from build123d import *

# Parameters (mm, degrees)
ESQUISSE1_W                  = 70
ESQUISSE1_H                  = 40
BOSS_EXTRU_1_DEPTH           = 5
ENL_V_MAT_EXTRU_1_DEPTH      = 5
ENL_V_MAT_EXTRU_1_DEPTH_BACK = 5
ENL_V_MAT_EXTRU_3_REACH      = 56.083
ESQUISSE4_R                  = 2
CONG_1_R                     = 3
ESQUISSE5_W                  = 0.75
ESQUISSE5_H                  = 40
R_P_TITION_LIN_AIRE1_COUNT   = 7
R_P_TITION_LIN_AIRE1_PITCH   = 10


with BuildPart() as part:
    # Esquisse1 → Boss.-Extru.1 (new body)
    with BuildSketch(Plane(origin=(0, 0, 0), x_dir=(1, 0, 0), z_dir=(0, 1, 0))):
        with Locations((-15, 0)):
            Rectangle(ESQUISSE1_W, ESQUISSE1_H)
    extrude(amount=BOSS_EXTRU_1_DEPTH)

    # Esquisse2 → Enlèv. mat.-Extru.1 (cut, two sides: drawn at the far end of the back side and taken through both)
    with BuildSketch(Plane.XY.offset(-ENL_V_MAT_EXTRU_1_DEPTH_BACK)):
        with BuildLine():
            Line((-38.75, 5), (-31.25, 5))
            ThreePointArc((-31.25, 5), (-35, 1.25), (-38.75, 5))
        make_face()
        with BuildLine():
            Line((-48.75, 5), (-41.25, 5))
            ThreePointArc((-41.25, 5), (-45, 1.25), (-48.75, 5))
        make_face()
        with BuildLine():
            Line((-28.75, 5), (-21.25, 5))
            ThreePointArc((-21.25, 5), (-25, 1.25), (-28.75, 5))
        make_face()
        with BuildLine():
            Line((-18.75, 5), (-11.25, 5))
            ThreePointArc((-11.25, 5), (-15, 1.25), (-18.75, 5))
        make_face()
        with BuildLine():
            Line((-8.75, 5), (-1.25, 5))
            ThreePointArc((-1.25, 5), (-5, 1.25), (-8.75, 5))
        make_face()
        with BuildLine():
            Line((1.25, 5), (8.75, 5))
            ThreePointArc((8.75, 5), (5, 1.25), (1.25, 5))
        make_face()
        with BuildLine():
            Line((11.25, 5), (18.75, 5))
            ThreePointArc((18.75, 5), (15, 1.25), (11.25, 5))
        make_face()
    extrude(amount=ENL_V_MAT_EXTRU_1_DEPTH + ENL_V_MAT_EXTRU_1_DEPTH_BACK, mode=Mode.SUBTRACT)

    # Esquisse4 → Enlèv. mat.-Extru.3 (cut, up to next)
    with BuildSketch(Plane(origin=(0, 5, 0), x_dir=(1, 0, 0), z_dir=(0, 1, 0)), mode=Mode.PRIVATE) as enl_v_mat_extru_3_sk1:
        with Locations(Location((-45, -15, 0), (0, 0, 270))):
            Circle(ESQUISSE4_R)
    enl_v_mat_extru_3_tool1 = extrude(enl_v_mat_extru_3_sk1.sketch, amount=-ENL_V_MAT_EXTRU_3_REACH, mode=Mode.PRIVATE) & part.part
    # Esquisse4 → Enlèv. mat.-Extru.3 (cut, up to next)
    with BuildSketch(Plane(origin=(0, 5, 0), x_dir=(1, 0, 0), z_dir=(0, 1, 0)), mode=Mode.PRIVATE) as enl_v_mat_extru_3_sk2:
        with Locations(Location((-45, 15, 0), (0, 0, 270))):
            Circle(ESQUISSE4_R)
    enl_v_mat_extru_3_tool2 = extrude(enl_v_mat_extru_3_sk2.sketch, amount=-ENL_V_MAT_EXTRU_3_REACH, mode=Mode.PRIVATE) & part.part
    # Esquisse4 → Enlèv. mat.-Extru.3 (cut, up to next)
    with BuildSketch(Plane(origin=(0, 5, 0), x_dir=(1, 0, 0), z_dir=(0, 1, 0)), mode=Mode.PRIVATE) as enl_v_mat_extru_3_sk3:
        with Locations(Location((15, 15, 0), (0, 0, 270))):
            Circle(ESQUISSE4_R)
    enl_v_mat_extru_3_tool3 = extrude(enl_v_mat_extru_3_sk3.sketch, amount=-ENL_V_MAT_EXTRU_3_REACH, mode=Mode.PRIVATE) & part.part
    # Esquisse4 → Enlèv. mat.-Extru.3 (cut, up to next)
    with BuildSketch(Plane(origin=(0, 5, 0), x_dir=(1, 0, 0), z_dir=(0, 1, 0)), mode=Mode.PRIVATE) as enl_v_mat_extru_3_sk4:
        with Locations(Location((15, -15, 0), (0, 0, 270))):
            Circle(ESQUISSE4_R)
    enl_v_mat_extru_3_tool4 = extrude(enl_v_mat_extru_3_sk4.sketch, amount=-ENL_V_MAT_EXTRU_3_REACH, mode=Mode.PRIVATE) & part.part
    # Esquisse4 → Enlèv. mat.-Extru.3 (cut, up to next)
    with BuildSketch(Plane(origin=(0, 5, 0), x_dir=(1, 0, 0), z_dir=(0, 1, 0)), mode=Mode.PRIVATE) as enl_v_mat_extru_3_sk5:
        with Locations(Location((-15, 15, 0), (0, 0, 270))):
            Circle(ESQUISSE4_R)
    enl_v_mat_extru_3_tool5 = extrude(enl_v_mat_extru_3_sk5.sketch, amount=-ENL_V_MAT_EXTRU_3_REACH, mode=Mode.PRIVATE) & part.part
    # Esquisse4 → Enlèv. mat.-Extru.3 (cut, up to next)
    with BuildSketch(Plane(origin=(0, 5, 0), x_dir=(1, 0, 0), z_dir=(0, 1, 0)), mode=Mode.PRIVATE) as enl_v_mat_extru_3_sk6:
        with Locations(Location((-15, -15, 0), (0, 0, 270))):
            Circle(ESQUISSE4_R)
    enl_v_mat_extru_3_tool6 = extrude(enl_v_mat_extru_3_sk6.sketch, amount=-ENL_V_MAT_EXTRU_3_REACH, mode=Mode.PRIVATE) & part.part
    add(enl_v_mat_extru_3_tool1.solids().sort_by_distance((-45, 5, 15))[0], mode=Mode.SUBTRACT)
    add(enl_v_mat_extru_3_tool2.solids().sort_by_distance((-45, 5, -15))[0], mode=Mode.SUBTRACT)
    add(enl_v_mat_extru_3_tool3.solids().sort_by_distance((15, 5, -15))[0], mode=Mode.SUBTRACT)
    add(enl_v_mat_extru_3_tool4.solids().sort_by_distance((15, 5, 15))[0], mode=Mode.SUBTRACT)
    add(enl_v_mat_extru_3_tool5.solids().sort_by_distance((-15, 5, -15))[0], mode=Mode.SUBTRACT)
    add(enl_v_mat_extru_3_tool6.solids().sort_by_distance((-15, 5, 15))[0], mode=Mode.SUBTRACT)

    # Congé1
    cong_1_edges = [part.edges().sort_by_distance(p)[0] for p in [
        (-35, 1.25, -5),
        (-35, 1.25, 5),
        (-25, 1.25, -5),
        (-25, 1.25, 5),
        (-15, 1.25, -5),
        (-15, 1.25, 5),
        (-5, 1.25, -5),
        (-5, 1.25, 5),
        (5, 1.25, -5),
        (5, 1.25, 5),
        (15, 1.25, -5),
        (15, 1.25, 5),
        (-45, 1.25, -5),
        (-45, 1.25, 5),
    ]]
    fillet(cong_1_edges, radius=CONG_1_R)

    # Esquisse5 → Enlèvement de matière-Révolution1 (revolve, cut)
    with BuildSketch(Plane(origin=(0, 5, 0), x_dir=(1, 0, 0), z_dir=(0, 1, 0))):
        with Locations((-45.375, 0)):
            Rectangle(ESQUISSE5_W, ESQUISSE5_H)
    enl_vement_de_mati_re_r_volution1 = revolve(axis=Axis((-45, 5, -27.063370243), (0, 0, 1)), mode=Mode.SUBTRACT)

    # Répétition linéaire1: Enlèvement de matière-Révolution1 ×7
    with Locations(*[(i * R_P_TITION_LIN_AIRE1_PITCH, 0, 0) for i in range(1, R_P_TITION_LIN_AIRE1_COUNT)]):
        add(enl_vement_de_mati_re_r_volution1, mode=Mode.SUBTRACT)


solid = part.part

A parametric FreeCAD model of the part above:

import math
import FreeCAD as App
import Part
import Sketcher

V = App.Vector


def edges_at(feature, points):
    """Names of the edges that pass closest to the given points."""
    edges = feature.Shape.Edges
    near = lambda p: min(range(len(edges)), key=lambda i: edges[i].distToShape(Part.Vertex(*p))[0])
    return sorted({f"Edge{near(p) + 1}" for p in points})


def add_polygon(sketch, points):
    """Adds a closed chain of lines whose ends are joined by coincident constraints."""
    first, n = sketch.GeometryCount, len(points)
    for a, b in zip(points, points[1:] + points[:1]):
        sketch.addGeometry(Part.LineSegment(App.Vector(*a, 0), App.Vector(*b, 0)), False)
    for i in range(n):
        sketch.addConstraint(Sketcher.Constraint("Coincident", first + i, 2, first + (i + 1) % n, 1))

doc = App.newDocument("Part")
body = doc.addObject("PartDesign::Body", "Body")

# Sketch on XZ plane
sketch1 = doc.addObject("Sketcher::SketchObject", "Sketch")
body.addObject(sketch1)
sketch1.AttachmentSupport = (doc.XZ_Plane, [""])
sketch1.MapMode = "FlatFace"
add_polygon(sketch1, [(-50, -20), (-50, 20), (20, 20), (20, -20)])  # lines 0-3
sketch1.addConstraint(Sketcher.Constraint("Vertical", 0))
sketch1.addConstraint(Sketcher.Constraint("Horizontal", 1))
sketch1.addConstraint(Sketcher.Constraint("Vertical", 2))
sketch1.addConstraint(Sketcher.Constraint("Horizontal", 3))
sketch1.addConstraint(Sketcher.Constraint("DistanceX", 1, 1, 1, 2, 70.0))
sketch1.addConstraint(Sketcher.Constraint("DistanceY", 0, 1, 0, 2, 40.0))
sketch1.addConstraint(Sketcher.Constraint("DistanceX", 0, 2, -1, 1, 50.0))
sketch1.addConstraint(Sketcher.Constraint("DistanceY", -1, 1, 0, 2, 20.0))
pad1 = doc.addObject("PartDesign::Pad", "Pad")
body.addObject(pad1)
pad1.Profile = sketch1
pad1.Length = 5
pad1.Reversed = True

# Sketch on XY plane
sketch2 = doc.addObject("Sketcher::SketchObject", "Sketch001")
body.addObject(sketch2)
sketch2.AttachmentSupport = (doc.XY_Plane, [""])
sketch2.MapMode = "FlatFace"
sketch2.addGeometry(Part.LineSegment(V(-31.2, 5, 0), V(-38.8, 5, 0)), False)
sketch2.addGeometry(Part.ArcOfCircle(Part.Circle(V(-35, 5, 0), V(0, 0, 1), 3.8), math.radians(180), math.radians(360)), False)
sketch2.addGeometry(Part.LineSegment(V(-41.2, 5, 0), V(-48.8, 5, 0)), False)
sketch2.addGeometry(Part.ArcOfCircle(Part.Circle(V(-45, 5, 0), V(0, 0, 1), 3.8), math.radians(180), math.radians(360)), False)
sketch2.addGeometry(Part.LineSegment(V(-21.2, 5, 0), V(-28.8, 5, 0)), False)
sketch2.addGeometry(Part.ArcOfCircle(Part.Circle(V(-25, 5, 0), V(0, 0, 1), 3.8), math.radians(180), math.radians(360)), False)
sketch2.addGeometry(Part.LineSegment(V(-11.2, 5, 0), V(-18.8, 5, 0)), False)
sketch2.addGeometry(Part.ArcOfCircle(Part.Circle(V(-15, 5, 0), V(0, 0, 1), 3.8), math.radians(180), math.radians(360)), False)
sketch2.addGeometry(Part.LineSegment(V(-1.2, 5, 0), V(-8.8, 5, 0)), False)
sketch2.addGeometry(Part.ArcOfCircle(Part.Circle(V(-5, 5, 0), V(0, 0, 1), 3.8), math.radians(180), math.radians(360)), False)
sketch2.addGeometry(Part.LineSegment(V(8.8, 5, 0), V(1.2, 5, 0)), False)
sketch2.addGeometry(Part.ArcOfCircle(Part.Circle(V(5, 5, 0), V(0, 0, 1), 3.8), math.radians(180), math.radians(360)), False)
sketch2.addGeometry(Part.LineSegment(V(18.8, 5, 0), V(11.2, 5, 0)), False)
sketch2.addGeometry(Part.ArcOfCircle(Part.Circle(V(15, 5, 0), V(0, 0, 1), 3.8), math.radians(180), math.radians(360)), False)
sketch2.addConstraint(Sketcher.Constraint("Coincident", 0, 1, 1, 2))
sketch2.addConstraint(Sketcher.Constraint("Coincident", 1, 1, 0, 2))
sketch2.addConstraint(Sketcher.Constraint("Coincident", 2, 1, 3, 2))
sketch2.addConstraint(Sketcher.Constraint("Coincident", 3, 1, 2, 2))
sketch2.addConstraint(Sketcher.Constraint("Coincident", 4, 1, 5, 2))
sketch2.addConstraint(Sketcher.Constraint("Coincident", 5, 1, 4, 2))
sketch2.addConstraint(Sketcher.Constraint("Coincident", 6, 1, 7, 2))
sketch2.addConstraint(Sketcher.Constraint("Coincident", 7, 1, 6, 2))
sketch2.addConstraint(Sketcher.Constraint("Coincident", 8, 1, 9, 2))
sketch2.addConstraint(Sketcher.Constraint("Coincident", 9, 1, 8, 2))
sketch2.addConstraint(Sketcher.Constraint("Coincident", 10, 1, 11, 2))
sketch2.addConstraint(Sketcher.Constraint("Coincident", 11, 1, 10, 2))
sketch2.addConstraint(Sketcher.Constraint("Coincident", 12, 1, 13, 2))
sketch2.addConstraint(Sketcher.Constraint("Coincident", 13, 1, 12, 2))
sketch2.addConstraint(Sketcher.Constraint("Horizontal", 0))
sketch2.addConstraint(Sketcher.Constraint("Horizontal", 2))
sketch2.addConstraint(Sketcher.Constraint("Horizontal", 4))
sketch2.addConstraint(Sketcher.Constraint("Horizontal", 6))
sketch2.addConstraint(Sketcher.Constraint("Horizontal", 8))
sketch2.addConstraint(Sketcher.Constraint("Horizontal", 10))
sketch2.addConstraint(Sketcher.Constraint("Horizontal", 12))
sketch2.addConstraint(Sketcher.Constraint("Equal", 1, 3))
sketch2.addConstraint(Sketcher.Constraint("Equal", 3, 5))
sketch2.addConstraint(Sketcher.Constraint("Equal", 5, 7))
sketch2.addConstraint(Sketcher.Constraint("Equal", 7, 9))
sketch2.addConstraint(Sketcher.Constraint("Equal", 9, 11))
sketch2.addConstraint(Sketcher.Constraint("Equal", 11, 13))
sketch2.addConstraint(Sketcher.Constraint("Symmetric", 9, 3, 11, 3, -2))
sketch2.addConstraint(Sketcher.Constraint("Symmetric", 7, 3, 13, 3, -2))
sketch2.addConstraint(Sketcher.Constraint("Horizontal", 1, 3, 3, 3))
sketch2.addConstraint(Sketcher.Constraint("Horizontal", 3, 3, 5, 3))
sketch2.addConstraint(Sketcher.Constraint("Horizontal", 5, 3, 7, 3))
sketch2.addConstraint(Sketcher.Constraint("Horizontal", 7, 3, 9, 3))
sketch2.addConstraint(Sketcher.Constraint("Horizontal", 13, 3, 0, 1))
sketch2.addConstraint(Sketcher.Constraint("Horizontal", 1, 1, 2, 1))
sketch2.addConstraint(Sketcher.Constraint("Horizontal", 3, 1, 4, 1))
sketch2.addConstraint(Sketcher.Constraint("Horizontal", 5, 1, 6, 1))
sketch2.addConstraint(Sketcher.Constraint("Horizontal", 7, 1, 8, 1))
sketch2.addConstraint(Sketcher.Constraint("Horizontal", 9, 1, 10, 1))
sketch2.addConstraint(Sketcher.Constraint("Horizontal", 11, 1, 12, 1))
sketch2.addConstraint(Sketcher.Constraint("Radius", 1, 3.75))
sketch2.addConstraint(Sketcher.Constraint("DistanceX", 1, 3, -1, 1, 35.0))
sketch2.addConstraint(Sketcher.Constraint("DistanceY", -1, 1, 1, 3, 5.0))
sketch2.addConstraint(Sketcher.Constraint("DistanceX", 3, 3, -1, 1, 45.0))
sketch2.addConstraint(Sketcher.Constraint("DistanceX", 5, 3, -1, 1, 25.0))
sketch2.addConstraint(Sketcher.Constraint("DistanceX", 7, 3, -1, 1, 15.0))
sketch2.addConstraint(Sketcher.Constraint("DistanceX", 9, 3, -1, 1, 5.0))
pocket1 = doc.addObject("PartDesign::Pocket", "Pocket")
body.addObject(pocket1)
pocket1.Profile = sketch2
pocket1.Type = "TwoLengths"
pocket1.Length = 5
pocket1.Length2 = 5
pocket1.Reversed = True

# Sketch on XZ plane
sketch3 = doc.addObject("Sketcher::SketchObject", "Sketch002")
body.addObject(sketch3)
sketch3.AttachmentSupport = (doc.XZ_Plane, [""])
sketch3.MapMode = "FlatFace"
sketch3.AttachmentOffset = App.Placement(V(0, 0, -5), App.Rotation())
sketch3.addGeometry(Part.Circle(V(-45, 15, 0), V(0, 0, 1), 2), False)
sketch3.addConstraint(Sketcher.Constraint("Diameter", 0, 4.0))
sketch3.addConstraint(Sketcher.Constraint("DistanceX", 0, 3, -1, 1, 45.0))
sketch3.addConstraint(Sketcher.Constraint("DistanceY", -1, 1, 0, 3, 15.0))
pocket2 = doc.addObject("PartDesign::Pocket", "Pocket001")
body.addObject(pocket2)
pocket2.Profile = sketch3
pocket2.Type = "UpToFirst"
pocket2.Reversed = True

# Sketch on XZ plane
sketch4 = doc.addObject("Sketcher::SketchObject", "Sketch003")
body.addObject(sketch4)
sketch4.AttachmentSupport = (doc.XZ_Plane, [""])
sketch4.MapMode = "FlatFace"
sketch4.AttachmentOffset = App.Placement(V(0, 0, -5), App.Rotation())
sketch4.addGeometry(Part.Circle(V(-45, -15, 0), V(0, 0, 1), 2), False)
sketch4.addConstraint(Sketcher.Constraint("Diameter", 0, 4.0))
sketch4.addConstraint(Sketcher.Constraint("DistanceX", 0, 3, -1, 1, 45.0))
sketch4.addConstraint(Sketcher.Constraint("DistanceY", 0, 3, -1, 1, 15.0))
pocket3 = doc.addObject("PartDesign::Pocket", "Pocket002")
body.addObject(pocket3)
pocket3.Profile = sketch4
pocket3.Type = "UpToFirst"
pocket3.Reversed = True

# Sketch on XZ plane
sketch5 = doc.addObject("Sketcher::SketchObject", "Sketch004")
body.addObject(sketch5)
sketch5.AttachmentSupport = (doc.XZ_Plane, [""])
sketch5.MapMode = "FlatFace"
sketch5.AttachmentOffset = App.Placement(V(0, 0, -5), App.Rotation())
sketch5.addGeometry(Part.Circle(V(15, -15, 0), V(0, 0, 1), 2), False)
sketch5.addConstraint(Sketcher.Constraint("Diameter", 0, 4.0))
sketch5.addConstraint(Sketcher.Constraint("DistanceX", -1, 1, 0, 3, 15.0))
sketch5.addConstraint(Sketcher.Constraint("DistanceY", 0, 3, -1, 1, 15.0))
pocket4 = doc.addObject("PartDesign::Pocket", "Pocket003")
body.addObject(pocket4)
pocket4.Profile = sketch5
pocket4.Type = "UpToFirst"
pocket4.Reversed = True

# Sketch on XZ plane
sketch6 = doc.addObject("Sketcher::SketchObject", "Sketch005")
body.addObject(sketch6)
sketch6.AttachmentSupport = (doc.XZ_Plane, [""])
sketch6.MapMode = "FlatFace"
sketch6.AttachmentOffset = App.Placement(V(0, 0, -5), App.Rotation())
sketch6.addGeometry(Part.Circle(V(15, 15, 0), V(0, 0, 1), 2), False)
sketch6.addConstraint(Sketcher.Constraint("Diameter", 0, 4.0))
sketch6.addConstraint(Sketcher.Constraint("DistanceX", -1, 1, 0, 3, 15.0))
sketch6.addConstraint(Sketcher.Constraint("DistanceY", -1, 1, 0, 3, 15.0))
pocket5 = doc.addObject("PartDesign::Pocket", "Pocket004")
body.addObject(pocket5)
pocket5.Profile = sketch6
pocket5.Type = "UpToFirst"
pocket5.Reversed = True

# Sketch on XZ plane
sketch7 = doc.addObject("Sketcher::SketchObject", "Sketch006")
body.addObject(sketch7)
sketch7.AttachmentSupport = (doc.XZ_Plane, [""])
sketch7.MapMode = "FlatFace"
sketch7.AttachmentOffset = App.Placement(V(0, 0, -5), App.Rotation())
sketch7.addGeometry(Part.Circle(V(-15, -15, 0), V(0, 0, 1), 2), False)
sketch7.addConstraint(Sketcher.Constraint("Diameter", 0, 4.0))
sketch7.addConstraint(Sketcher.Constraint("DistanceX", 0, 3, -1, 1, 15.0))
sketch7.addConstraint(Sketcher.Constraint("DistanceY", 0, 3, -1, 1, 15.0))
pocket6 = doc.addObject("PartDesign::Pocket", "Pocket005")
body.addObject(pocket6)
pocket6.Profile = sketch7
pocket6.Type = "UpToFirst"
pocket6.Reversed = True

# Sketch on XZ plane
sketch8 = doc.addObject("Sketcher::SketchObject", "Sketch007")
body.addObject(sketch8)
sketch8.AttachmentSupport = (doc.XZ_Plane, [""])
sketch8.MapMode = "FlatFace"
sketch8.AttachmentOffset = App.Placement(V(0, 0, -5), App.Rotation())
sketch8.addGeometry(Part.Circle(V(-15, 15, 0), V(0, 0, 1), 2), False)
sketch8.addConstraint(Sketcher.Constraint("Diameter", 0, 4.0))
sketch8.addConstraint(Sketcher.Constraint("DistanceX", 0, 3, -1, 1, 15.0))
sketch8.addConstraint(Sketcher.Constraint("DistanceY", -1, 1, 0, 3, 15.0))
pocket7 = doc.addObject("PartDesign::Pocket", "Pocket006")
body.addObject(pocket7)
pocket7.Profile = sketch8
pocket7.Type = "UpToFirst"
pocket7.Reversed = True
doc.recompute()

fillet = doc.addObject("PartDesign::Fillet", "Fillet")
body.addObject(fillet)
fillet.Base = (pocket7, edges_at(pocket7, [
    (-35, 1.25, -5),
    (-35, 1.25, 5),
    (-25, 1.25, -5),
    (-25, 1.25, 5),
    (-15, 1.25, -5),
    (-15, 1.25, 5),
    (-5, 1.25, -5),
    (-5, 1.25, 5),
    (5, 1.25, -5),
    (5, 1.25, 5),
    (15, 1.25, -5),
    (15, 1.25, 5),
    (-45, 1.25, -5),
    (-45, 1.25, 5),
]))
fillet.Radius = 3

# Sketch on XZ plane
sketch9 = doc.addObject("Sketcher::SketchObject", "Sketch008")
body.addObject(sketch9)
sketch9.AttachmentSupport = (doc.XZ_Plane, [""])
sketch9.MapMode = "FlatFace"
sketch9.AttachmentOffset = App.Placement(V(0, 0, -5), App.Rotation())
add_polygon(sketch9, [(-45.8, -20), (-45.8, 20), (-45, 20), (-45, -20)])  # lines 0-3
sketch9.addGeometry(Part.LineSegment(V(-45, -20, 0), V(-45, 20, 0)), True)  # axis
sketch9.addConstraint(Sketcher.Constraint("Vertical", 0))
sketch9.addConstraint(Sketcher.Constraint("Horizontal", 1))
sketch9.addConstraint(Sketcher.Constraint("Vertical", 2))
sketch9.addConstraint(Sketcher.Constraint("Horizontal", 3))
sketch9.addConstraint(Sketcher.Constraint("Vertical", 4))
sketch9.addConstraint(Sketcher.Constraint("Coincident", 4, 1, 2, 2))
sketch9.addConstraint(Sketcher.Constraint("Horizontal", 0, 2, 4, 2))
sketch9.addConstraint(Sketcher.Constraint("DistanceY", 0, 1, 0, 2, 40.0))
sketch9.addConstraint(Sketcher.Constraint("DistanceY", -1, 1, 0, 2, 20.0))
sketch9.addConstraint(Sketcher.Constraint("DistanceX", 1, 2, -1, 1, 45.0))
sketch9.addConstraint(Sketcher.Constraint("DistanceX", 1, 1, 1, 2, 0.75))
groove = doc.addObject("PartDesign::Groove", "Groove")
body.addObject(groove)
groove.Profile = sketch9
groove.ReferenceAxis = (sketch9, ["Axis0"])
groove.Angle = 360
doc.recompute()

linearpattern = doc.addObject("PartDesign::LinearPattern", "LinearPattern")
body.addObject(linearpattern)
linearpattern.Originals = [groove]
linearpattern.Direction = (doc.X_Axis, [""])
linearpattern.Mode = "offset"
linearpattern.Offset = 10
linearpattern.Occurrences = 7
body.Tip = linearpattern

doc.recompute()
